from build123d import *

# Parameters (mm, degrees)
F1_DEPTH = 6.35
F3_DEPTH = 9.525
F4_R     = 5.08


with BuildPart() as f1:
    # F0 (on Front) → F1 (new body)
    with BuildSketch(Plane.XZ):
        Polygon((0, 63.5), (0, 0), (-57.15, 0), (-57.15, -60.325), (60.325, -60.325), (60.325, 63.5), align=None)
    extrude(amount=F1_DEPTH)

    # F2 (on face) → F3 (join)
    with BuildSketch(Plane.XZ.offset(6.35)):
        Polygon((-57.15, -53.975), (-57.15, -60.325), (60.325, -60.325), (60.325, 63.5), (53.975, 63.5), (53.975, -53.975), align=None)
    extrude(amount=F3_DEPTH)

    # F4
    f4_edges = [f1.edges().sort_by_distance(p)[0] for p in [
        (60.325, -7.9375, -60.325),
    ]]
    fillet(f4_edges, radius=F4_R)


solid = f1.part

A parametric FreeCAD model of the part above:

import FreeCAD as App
import Part
import Sketcher
Q = App.Units.Quantity


def edges_at(feature, points):
    """Names of the edges that pass closest to the given points."""
    edges = feature.Shape.Edges
    near = lambda p: min(range(len(edges)), key=lambda i: edges[i].distToShape(Part.Vertex(*p))[0])
    return sorted({f"Edge{near(p) + 1}" for p in points})

doc = App.newDocument("Part")
body = doc.addObject("PartDesign::Body", "Body")

# Sketch on XZ plane
sketch1 = body.newObject("Sketcher::SketchObject", "Sketch")
sketch1.AttachmentSupport = (doc.getObject("XZ_Plane"), [""])
sketch1.MapMode = "FlatFace"
sketch1.addGeometry([
    Part.LineSegment(App.Vector(0, 64, 0), App.Vector(0, 0, 0)),  # 0
    Part.LineSegment(App.Vector(0, 0, 0), App.Vector(-57, 0, 0)),  # 1
    Part.LineSegment(App.Vector(-57, 0, 0), App.Vector(-57, -60, 0)),  # 2
    Part.LineSegment(App.Vector(-57, -60, 0), App.Vector(60, -60, 0)),  # 3
    Part.LineSegment(App.Vector(60, -60, 0), App.Vector(60, 64, 0)),  # 4
    Part.LineSegment(App.Vector(60, 64, 0), App.Vector(0, 64, 0)),  # 5
], False)
sketch1.addConstraint([
    Sketcher.Constraint("Coincident", 0, 2, 1, 1),
    Sketcher.Constraint("Coincident", 1, 2, 2, 1),
    Sketcher.Constraint("Coincident", 2, 2, 3, 1),
    Sketcher.Constraint("Coincident", 3, 2, 4, 1),
    Sketcher.Constraint("Coincident", 4, 2, 5, 1),
    Sketcher.Constraint("Coincident", 5, 2, 0, 1),
    Sketcher.Constraint("Vertical", 0),
    Sketcher.Constraint("Horizontal", 1),
    Sketcher.Constraint("Vertical", 2),
    Sketcher.Constraint("Horizontal", 3),
    Sketcher.Constraint("Vertical", 4),
    Sketcher.Constraint("Horizontal", 5),
    Sketcher.Constraint("Coincident", 0, 2, -1, 1),
    Sketcher.Constraint("Equal", 5, 2),
    Sketcher.Constraint("DistanceY", 0, 2, 0, 1, Q("2.5 in")),
    Sketcher.Constraint("DistanceX", 1, 2, 1, 1, Q("2.25 in")),
    Sketcher.Constraint("DistanceX", 3, 1, 3, 2, Q("4.625 in")),
])
pad1 = body.newObject("PartDesign::Pad", "Pad")
pad1.Profile = sketch1
pad1.Length = Q("0.25 in")

# Sketch on XZ plane
sketch2 = body.newObject("Sketcher::SketchObject", "Sketch001")
sketch2.AttachmentSupport = (doc.getObject("XZ_Plane"), [""])
sketch2.MapMode = "FlatFace"
sketch2.AttachmentOffset = App.Placement(App.Vector(0, 0, 0.25 * 25.4), App.Rotation())
sketch2.addGeometry([
    Part.LineSegment(App.Vector(-57, -54, 0), App.Vector(-57, -60, 0)),  # 0
    Part.LineSegment(App.Vector(-57, -60, 0), App.Vector(60, -60, 0)),  # 1
    Part.LineSegment(App.Vector(60, -60, 0), App.Vector(60, 64, 0)),  # 2
    Part.LineSegment(App.Vector(60, 64, 0), App.Vector(54, 64, 0)),  # 3
    Part.LineSegment(App.Vector(54, 64, 0), App.Vector(54, -54, 0)),  # 4
    Part.LineSegment(App.Vector(54, -54, 0), App.Vector(-57, -54, 0)),  # 5
], False)
sketch2.addConstraint([
    Sketcher.Constraint("Coincident", 0, 2, 1, 1),
    Sketcher.Constraint("Coincident", 1, 2, 2, 1),
    Sketcher.Constraint("Coincident", 2, 2, 3, 1),
    Sketcher.Constraint("Coincident", 3, 2, 4, 1),
    Sketcher.Constraint("Coincident", 4, 2, 5, 1),
    Sketcher.Constraint("Coincident", 5, 2, 0, 1),
    Sketcher.Constraint("Vertical", 0),
    Sketcher.Constraint("Horizontal", 1),
    Sketcher.Constraint("Vertical", 2),
    Sketcher.Constraint("Horizontal", 3),
    Sketcher.Constraint("Vertical", 4),
    Sketcher.Constraint("Horizontal", 5),
    Sketcher.Constraint("Equal", 3, 0),
    Sketcher.Constraint("Equal", 1, 4),
    Sketcher.Constraint("DistanceX", 3, 2, 3, 1, Q("0.25 in")),
    Sketcher.Constraint("DistanceY", -1, 1, 2, 2, Q("2.5 in")),
    Sketcher.Constraint("DistanceX", 1, 1, 1, 2, Q("4.625 in")),
    Sketcher.Constraint("DistanceX", 0, 2, -1, 1, Q("2.25 in")),
])
pad2 = body.newObject("PartDesign::Pad", "Pad001")
pad2.Profile = sketch2
pad2.Length = Q("0.375 in")
doc.recompute()

fillet = body.newObject("PartDesign::Fillet", "Fillet")
fillet.Base = (pad2, edges_at(pad2, [(60.325, -7.938, -60.325)]))
fillet.Radius = Q("0.2 in")

doc.recompute()
